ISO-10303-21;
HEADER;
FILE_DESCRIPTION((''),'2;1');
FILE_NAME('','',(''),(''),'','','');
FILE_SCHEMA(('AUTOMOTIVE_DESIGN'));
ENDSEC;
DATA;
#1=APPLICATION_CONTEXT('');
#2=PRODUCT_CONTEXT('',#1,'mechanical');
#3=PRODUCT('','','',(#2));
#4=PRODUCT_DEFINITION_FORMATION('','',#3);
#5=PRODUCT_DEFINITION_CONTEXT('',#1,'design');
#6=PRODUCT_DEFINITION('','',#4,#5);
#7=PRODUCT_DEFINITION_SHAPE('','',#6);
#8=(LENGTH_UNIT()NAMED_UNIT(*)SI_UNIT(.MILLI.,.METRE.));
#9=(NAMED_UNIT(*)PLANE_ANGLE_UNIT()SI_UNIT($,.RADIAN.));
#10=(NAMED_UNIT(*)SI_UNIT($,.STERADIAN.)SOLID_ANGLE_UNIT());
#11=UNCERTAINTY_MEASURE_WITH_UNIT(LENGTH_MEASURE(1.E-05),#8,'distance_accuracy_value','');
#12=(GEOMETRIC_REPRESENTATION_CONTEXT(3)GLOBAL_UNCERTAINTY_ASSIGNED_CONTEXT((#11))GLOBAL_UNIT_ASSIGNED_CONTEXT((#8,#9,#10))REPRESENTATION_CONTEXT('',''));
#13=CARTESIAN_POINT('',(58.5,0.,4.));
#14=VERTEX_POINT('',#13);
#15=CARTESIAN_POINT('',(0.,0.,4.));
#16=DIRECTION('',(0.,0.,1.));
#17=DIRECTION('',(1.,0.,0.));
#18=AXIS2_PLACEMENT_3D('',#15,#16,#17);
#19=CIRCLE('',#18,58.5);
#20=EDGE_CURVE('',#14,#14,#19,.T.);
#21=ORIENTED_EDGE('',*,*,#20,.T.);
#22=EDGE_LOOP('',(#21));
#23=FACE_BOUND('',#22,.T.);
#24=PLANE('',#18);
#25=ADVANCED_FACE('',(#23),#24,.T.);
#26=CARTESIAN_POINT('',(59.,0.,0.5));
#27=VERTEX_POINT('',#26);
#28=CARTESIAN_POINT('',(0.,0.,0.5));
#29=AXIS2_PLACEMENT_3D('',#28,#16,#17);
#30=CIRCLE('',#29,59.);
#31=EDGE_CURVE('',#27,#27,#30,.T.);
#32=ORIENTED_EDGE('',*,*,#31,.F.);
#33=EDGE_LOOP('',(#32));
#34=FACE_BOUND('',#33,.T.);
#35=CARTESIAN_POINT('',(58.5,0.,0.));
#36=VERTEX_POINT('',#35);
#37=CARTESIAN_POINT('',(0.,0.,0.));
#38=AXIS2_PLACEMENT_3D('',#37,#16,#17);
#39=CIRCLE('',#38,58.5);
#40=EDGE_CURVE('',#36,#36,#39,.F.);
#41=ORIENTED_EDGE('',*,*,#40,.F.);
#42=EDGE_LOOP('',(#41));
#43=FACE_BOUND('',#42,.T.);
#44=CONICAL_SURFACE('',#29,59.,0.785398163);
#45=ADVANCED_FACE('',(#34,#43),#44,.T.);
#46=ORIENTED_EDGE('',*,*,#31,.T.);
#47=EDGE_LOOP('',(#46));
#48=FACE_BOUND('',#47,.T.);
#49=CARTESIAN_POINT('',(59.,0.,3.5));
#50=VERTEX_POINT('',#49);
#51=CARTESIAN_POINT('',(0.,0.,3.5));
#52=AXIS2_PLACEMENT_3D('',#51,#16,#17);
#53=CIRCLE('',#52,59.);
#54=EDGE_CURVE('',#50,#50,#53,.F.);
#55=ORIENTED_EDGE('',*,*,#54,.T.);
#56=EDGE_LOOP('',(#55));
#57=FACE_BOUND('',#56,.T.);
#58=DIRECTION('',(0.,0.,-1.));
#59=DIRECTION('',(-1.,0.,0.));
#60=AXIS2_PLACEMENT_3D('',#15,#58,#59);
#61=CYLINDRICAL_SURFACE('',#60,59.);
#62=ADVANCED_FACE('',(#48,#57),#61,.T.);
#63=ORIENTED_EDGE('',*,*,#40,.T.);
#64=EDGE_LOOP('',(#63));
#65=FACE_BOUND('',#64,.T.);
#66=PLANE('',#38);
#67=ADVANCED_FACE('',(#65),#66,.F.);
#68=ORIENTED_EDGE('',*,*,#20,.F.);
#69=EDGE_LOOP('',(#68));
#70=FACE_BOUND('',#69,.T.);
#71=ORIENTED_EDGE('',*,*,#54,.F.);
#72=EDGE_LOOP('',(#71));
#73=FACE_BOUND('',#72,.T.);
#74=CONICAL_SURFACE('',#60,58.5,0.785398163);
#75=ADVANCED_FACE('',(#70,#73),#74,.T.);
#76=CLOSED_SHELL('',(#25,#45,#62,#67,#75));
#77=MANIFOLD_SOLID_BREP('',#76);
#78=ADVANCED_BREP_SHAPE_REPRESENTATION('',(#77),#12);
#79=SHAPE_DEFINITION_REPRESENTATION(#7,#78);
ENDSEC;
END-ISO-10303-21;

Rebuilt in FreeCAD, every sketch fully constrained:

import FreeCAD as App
import Part
import Sketcher

V = App.Vector
Q = App.Units.Quantity


def edges_at(feature, points):
    """Names of the edges that pass closest to the given points."""
    edges = feature.Shape.Edges
    near = lambda p: min(range(len(edges)), key=lambda i: edges[i].distToShape(Part.Vertex(*p))[0])
    return sorted({f"Edge{near(p) + 1}" for p in points})

doc = App.newDocument("Part")
body = doc.addObject("PartDesign::Body", "Body")

sketch1 = body.newObject("Sketcher::SketchObject", "Sketch")
sketch1.AttachmentSupport = (doc.getObject("XY_Plane"), [""])
sketch1.MapMode = "FlatFace"
sketch1.addGeometry(Part.Circle(V(0, 0, 0), V(0, 0, 1), 59), False)
sketch1.addConstraint([
    Sketcher.Constraint("Coincident", 0, 3, -1, 1),
    Sketcher.Constraint("Diameter", 0, Q("118 mm")),
])
pad1 = body.newObject("PartDesign::Pad", "Pad")
pad1.Profile = sketch1
pad1.Length = 4
doc.recompute()

chamfer = body.newObject("PartDesign::Chamfer", "Chamfer")
chamfer.Base = (pad1, edges_at(pad1, [(-59, 0, 0), (-59, 0, 4)]))
chamfer.Size = 0.5

doc.recompute()
